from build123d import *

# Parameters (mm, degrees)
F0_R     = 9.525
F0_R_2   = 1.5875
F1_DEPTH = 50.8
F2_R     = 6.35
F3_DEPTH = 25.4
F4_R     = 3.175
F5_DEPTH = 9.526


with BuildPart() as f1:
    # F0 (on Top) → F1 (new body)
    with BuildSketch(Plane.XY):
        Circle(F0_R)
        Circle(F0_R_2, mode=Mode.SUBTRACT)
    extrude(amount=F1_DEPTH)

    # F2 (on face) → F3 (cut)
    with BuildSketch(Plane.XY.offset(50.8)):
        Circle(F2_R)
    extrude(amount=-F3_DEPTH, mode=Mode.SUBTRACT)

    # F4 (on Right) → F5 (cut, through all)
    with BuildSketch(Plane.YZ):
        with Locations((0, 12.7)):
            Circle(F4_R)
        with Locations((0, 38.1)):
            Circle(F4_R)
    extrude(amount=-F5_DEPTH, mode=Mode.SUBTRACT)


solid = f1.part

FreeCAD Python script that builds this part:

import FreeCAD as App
import Part
import Sketcher

V = App.Vector
Q = App.Units.Quantity

doc = App.newDocument("Part")
body = doc.addObject("PartDesign::Body", "Body")

# Sketch on XY plane
sketch1 = doc.addObject("Sketcher::SketchObject", "Sketch")
body.addObject(sketch1)
sketch1.AttachmentSupport = (doc.XY_Plane, [""])
sketch1.MapMode = "FlatFace"
sketch1.addGeometry([
    Part.Circle(V(0, 0, 0), V(0, 0, 1), 9.5),
    Part.Circle(V(0, 0, 0), V(0, 0, 1), 1.6),
], False)
sketch1.addConstraint([
    Sketcher.Constraint("Coincident", 0, 3, -1, 1),
    Sketcher.Constraint("Coincident", 1, 3, -1, 1),
    Sketcher.Constraint("Diameter", 0, Q("0.75 in")),
    Sketcher.Constraint("Diameter", 1, Q("0.125 in")),
])
pad1 = doc.addObject("PartDesign::Pad", "Pad")
body.addObject(pad1)
pad1.Profile = sketch1
pad1.Length = Q("2 in")

# Sketch on XY plane
sketch2 = doc.addObject("Sketcher::SketchObject", "Sketch001")
body.addObject(sketch2)
sketch2.AttachmentSupport = (doc.XY_Plane, [""])
sketch2.MapMode = "FlatFace"
sketch2.AttachmentOffset = App.Placement(V(0, 0, 2 * 25.4), App.Rotation())
sketch2.addGeometry(Part.Circle(V(0, 0, 0), V(0, 0, 1), 6), False)
sketch2.addConstraint([
    Sketcher.Constraint("Coincident", 0, 3, -1, 1),
    Sketcher.Constraint("Diameter", 0, Q("0.5 in")),
])
pocket1 = doc.addObject("PartDesign::Pocket", "Pocket")
body.addObject(pocket1)
pocket1.Profile = sketch2
pocket1.Length = Q("1 in")

# Sketch on YZ plane
sketch3 = doc.addObject("Sketcher::SketchObject", "Sketch002")
body.addObject(sketch3)
sketch3.AttachmentSupport = (doc.YZ_Plane, [""])
sketch3.MapMode = "FlatFace"
sketch3.addGeometry([
    Part.Circle(V(0, 12.7, 0), V(0, 0, 1), 3.2),
    Part.Circle(V(0, 38.1, 0), V(0, 0, 1), 3.2),
], False)
sketch3.addConstraint([
    Sketcher.Constraint("Equal", 0, 1),
    Sketcher.Constraint("PointOnObject", 0, 3, -2),
    Sketcher.Constraint("PointOnObject", 1, 3, -2),
    Sketcher.Constraint("Diameter", 0, Q("0.25 in")),
    Sketcher.Constraint("DistanceY", 0, 3, 1, 3, Q("1 in")),
    Sketcher.Constraint("DistanceY", -1, 1, 0, 3, Q("0.5 in")),
])
pocket2 = doc.addObject("PartDesign::Pocket", "Pocket001")
body.addObject(pocket2)
pocket2.Profile = sketch3
pocket2.Type = "ThroughAll"

doc.recompute()
